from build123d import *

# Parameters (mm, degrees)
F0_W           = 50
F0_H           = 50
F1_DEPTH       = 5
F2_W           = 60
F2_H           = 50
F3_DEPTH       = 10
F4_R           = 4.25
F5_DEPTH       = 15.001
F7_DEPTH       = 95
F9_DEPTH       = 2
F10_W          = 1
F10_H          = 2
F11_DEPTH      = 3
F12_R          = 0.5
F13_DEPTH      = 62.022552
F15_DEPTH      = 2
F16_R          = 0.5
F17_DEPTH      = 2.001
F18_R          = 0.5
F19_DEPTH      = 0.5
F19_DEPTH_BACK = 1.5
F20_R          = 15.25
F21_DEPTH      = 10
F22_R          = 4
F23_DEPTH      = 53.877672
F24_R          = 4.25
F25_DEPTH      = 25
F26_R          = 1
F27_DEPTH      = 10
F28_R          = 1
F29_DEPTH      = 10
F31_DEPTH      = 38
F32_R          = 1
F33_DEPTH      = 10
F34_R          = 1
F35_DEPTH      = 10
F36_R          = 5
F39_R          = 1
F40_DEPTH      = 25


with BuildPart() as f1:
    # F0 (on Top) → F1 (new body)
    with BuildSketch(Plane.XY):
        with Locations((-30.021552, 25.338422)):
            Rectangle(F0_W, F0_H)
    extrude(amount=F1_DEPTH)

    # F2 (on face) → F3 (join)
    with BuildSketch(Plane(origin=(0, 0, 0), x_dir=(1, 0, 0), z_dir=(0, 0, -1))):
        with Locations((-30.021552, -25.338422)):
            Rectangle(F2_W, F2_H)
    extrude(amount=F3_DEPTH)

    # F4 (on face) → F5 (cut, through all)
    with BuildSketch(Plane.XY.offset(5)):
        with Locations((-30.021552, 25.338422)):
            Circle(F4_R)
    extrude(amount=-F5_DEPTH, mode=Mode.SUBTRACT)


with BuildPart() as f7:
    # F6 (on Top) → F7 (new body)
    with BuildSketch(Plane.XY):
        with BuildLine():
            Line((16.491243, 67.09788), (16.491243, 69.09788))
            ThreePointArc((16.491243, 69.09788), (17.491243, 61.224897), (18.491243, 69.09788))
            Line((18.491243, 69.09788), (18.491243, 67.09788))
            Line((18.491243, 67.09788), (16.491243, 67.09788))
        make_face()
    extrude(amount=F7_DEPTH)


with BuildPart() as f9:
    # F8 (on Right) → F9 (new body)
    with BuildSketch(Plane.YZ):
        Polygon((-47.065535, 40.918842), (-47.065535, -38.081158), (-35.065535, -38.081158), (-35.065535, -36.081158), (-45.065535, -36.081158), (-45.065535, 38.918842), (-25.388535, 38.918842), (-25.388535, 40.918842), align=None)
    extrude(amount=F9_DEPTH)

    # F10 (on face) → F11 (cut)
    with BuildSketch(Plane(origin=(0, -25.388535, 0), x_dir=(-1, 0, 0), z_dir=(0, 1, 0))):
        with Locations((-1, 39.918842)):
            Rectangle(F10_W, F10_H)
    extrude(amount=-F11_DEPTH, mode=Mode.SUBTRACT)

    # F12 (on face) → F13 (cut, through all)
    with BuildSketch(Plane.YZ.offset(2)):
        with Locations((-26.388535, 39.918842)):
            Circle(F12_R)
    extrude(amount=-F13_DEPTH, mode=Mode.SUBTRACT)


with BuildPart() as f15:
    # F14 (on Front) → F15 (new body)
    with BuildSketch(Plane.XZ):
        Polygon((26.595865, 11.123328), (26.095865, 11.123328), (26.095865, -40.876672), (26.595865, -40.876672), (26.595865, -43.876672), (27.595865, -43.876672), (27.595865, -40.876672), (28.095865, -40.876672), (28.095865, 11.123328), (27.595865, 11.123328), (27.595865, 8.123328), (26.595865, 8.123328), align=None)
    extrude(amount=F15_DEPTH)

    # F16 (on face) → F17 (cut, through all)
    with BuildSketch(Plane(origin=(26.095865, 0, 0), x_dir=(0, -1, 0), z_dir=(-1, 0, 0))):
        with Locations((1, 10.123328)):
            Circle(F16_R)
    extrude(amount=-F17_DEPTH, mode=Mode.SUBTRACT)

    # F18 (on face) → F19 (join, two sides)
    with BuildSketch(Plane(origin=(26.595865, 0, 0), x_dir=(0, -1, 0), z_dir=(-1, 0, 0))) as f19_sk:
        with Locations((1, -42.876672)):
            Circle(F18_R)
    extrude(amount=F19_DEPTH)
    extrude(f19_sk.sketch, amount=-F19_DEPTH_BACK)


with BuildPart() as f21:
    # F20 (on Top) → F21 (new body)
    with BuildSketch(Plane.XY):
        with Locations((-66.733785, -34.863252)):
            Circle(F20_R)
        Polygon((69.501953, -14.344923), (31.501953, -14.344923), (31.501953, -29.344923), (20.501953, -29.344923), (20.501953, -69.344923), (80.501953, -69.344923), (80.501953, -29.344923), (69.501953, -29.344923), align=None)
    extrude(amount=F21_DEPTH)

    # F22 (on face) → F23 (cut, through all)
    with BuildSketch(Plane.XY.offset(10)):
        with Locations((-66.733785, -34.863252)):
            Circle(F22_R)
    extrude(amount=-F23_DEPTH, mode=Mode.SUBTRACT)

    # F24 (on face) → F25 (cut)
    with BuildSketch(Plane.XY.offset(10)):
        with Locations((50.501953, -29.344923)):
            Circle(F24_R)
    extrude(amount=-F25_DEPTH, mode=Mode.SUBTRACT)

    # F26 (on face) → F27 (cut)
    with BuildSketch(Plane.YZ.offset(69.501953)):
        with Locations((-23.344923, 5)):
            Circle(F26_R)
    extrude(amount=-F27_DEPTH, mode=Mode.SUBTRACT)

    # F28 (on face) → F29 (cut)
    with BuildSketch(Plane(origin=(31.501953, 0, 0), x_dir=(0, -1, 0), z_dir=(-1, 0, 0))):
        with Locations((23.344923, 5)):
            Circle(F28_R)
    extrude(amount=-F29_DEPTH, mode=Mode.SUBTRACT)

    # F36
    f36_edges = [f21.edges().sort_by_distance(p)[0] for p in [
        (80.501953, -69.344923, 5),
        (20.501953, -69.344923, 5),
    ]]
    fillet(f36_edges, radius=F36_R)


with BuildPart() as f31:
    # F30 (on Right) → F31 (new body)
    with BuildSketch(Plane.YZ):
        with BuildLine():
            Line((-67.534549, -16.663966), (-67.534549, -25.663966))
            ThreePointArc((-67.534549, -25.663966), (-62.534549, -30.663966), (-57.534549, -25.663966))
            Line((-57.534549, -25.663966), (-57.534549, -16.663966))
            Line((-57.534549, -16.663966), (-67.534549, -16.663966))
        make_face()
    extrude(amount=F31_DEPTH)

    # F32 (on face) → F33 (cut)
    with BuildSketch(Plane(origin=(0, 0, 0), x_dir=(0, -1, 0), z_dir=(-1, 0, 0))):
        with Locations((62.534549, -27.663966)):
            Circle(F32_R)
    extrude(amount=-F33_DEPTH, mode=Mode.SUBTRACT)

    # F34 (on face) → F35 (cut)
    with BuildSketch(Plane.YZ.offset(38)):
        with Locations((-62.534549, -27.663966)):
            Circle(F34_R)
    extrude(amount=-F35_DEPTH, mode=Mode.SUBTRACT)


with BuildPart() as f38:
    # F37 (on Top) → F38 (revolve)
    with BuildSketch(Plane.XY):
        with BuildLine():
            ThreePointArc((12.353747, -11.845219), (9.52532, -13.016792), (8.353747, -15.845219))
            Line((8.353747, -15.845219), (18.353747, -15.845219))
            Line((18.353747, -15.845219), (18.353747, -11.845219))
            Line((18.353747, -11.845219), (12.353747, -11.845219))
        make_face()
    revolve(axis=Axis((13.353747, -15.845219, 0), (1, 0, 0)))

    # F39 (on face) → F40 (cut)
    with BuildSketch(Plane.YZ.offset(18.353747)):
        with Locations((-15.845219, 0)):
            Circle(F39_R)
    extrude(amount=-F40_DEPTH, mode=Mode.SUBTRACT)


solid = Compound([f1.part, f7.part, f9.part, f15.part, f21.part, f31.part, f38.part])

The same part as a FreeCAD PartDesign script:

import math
import FreeCAD as App
import Part
import Sketcher

V = App.Vector
Q = App.Units.Quantity


def edges_at(feature, points):
    """Names of the edges that pass closest to the given points."""
    edges = feature.Shape.Edges
    near = lambda p: min(range(len(edges)), key=lambda i: edges[i].distToShape(Part.Vertex(*p))[0])
    return sorted({f"Edge{near(p) + 1}" for p in points})


def add_polygon(sketch, points):
    """Adds a closed chain of lines whose ends are joined by coincident constraints."""
    first, n = sketch.GeometryCount, len(points)
    for a, b in zip(points, points[1:] + points[:1]):
        sketch.addGeometry(Part.LineSegment(App.Vector(*a, 0), App.Vector(*b, 0)), False)
    for i in range(n):
        sketch.addConstraint(Sketcher.Constraint("Coincident", first + i, 2, first + (i + 1) % n, 1))

doc = App.newDocument("Part")
body = doc.addObject("PartDesign::Body", "Body")

# Sketch on XY plane
sketch1 = body.newObject("Sketcher::SketchObject", "Sketch")
sketch1.AttachmentSupport = (doc.getObject("XY_Plane"), [""])
sketch1.MapMode = "FlatFace"
add_polygon(sketch1, [(-55.021552, 50.338422), (-55.021552, 0.338422), (-5.021552, 0.338422), (-5.021552, 50.338422)])  # lines 0-3
sketch1.addConstraint([
    Sketcher.Constraint("Vertical", 0),
    Sketcher.Constraint("Horizontal", 1),
    Sketcher.Constraint("Vertical", 2),
    Sketcher.Constraint("Horizontal", 3),
    Sketcher.Constraint("Equal", 3, 0),
    Sketcher.Constraint("DistanceX", 1, 1, 1, 2, Q("50 mm")),
    Sketcher.Constraint("DistanceX", 1, 2, -1, 1, Q("5.021552 mm")),
    Sketcher.Constraint("DistanceY", -1, 1, 0, 2, Q("0.338422 mm")),
])
pad1 = body.newObject("PartDesign::Pad", "Pad")
pad1.Profile = sketch1
pad1.Length = 5

# Sketch on XY plane
sketch2 = body.newObject("Sketcher::SketchObject", "Sketch001")
sketch2.AttachmentSupport = (doc.getObject("XY_Plane"), [""])
sketch2.MapMode = "FlatFace"
add_polygon(sketch2, [(-60.021552, 0.338422), (-60.021552, 50.338422), (-0.021552, 50.338422), (-0.021552, 0.338422)])  # lines 0-3
sketch2.addConstraint([
    Sketcher.Constraint("Vertical", 0),
    Sketcher.Constraint("Horizontal", 1),
    Sketcher.Constraint("Vertical", 2),
    Sketcher.Constraint("Horizontal", 3),
    Sketcher.Constraint("DistanceX", 1, 1, 1, 2, Q("60 mm")),
    Sketcher.Constraint("DistanceY", 0, 1, 0, 2, Q("50 mm")),
    Sketcher.Constraint("DistanceX", 0, 2, -1, 1, Q("60.021552 mm")),
    Sketcher.Constraint("DistanceY", -1, 1, 0, 2, Q("50.338422 mm")),
])
pad2 = body.newObject("PartDesign::Pad", "Pad001")
pad2.Profile = sketch2
pad2.Length = 10
pad2.Reversed = True

# Sketch on XY plane
sketch3 = body.newObject("Sketcher::SketchObject", "Sketch002")
sketch3.AttachmentSupport = (doc.getObject("XY_Plane"), [""])
sketch3.MapMode = "FlatFace"
sketch3.AttachmentOffset = App.Placement(V(0, 0, 5), App.Rotation())
sketch3.addGeometry(Part.Circle(V(-30.021552, 25.338422, 0), V(0, 0, 1), 4.25), False)
sketch3.addConstraint([
    Sketcher.Constraint("Diameter", 0, Q("8.5 mm")),
    Sketcher.Constraint("DistanceX", 0, 3, -1, 1, Q("30.021552 mm")),
    Sketcher.Constraint("DistanceY", -1, 1, 0, 3, Q("25.338422 mm")),
])
pocket1 = body.newObject("PartDesign::Pocket", "Pocket")
pocket1.Profile = sketch3
pocket1.Type = "ThroughAll"
body2 = doc.addObject("PartDesign::Body", "Body001")

# Sketch on XY plane
sketch4 = body2.newObject("Sketcher::SketchObject", "Sketch003")
sketch4.AttachmentSupport = (doc.getObject("XY_Plane001"), [""])
sketch4.MapMode = "FlatFace"
sketch4.addGeometry([
    Part.LineSegment(V(16.491243, 67.09788, 0), V(16.491243, 69.09788, 0)),
    Part.ArcOfCircle(Part.Circle(V(17.491243, 65.224897, 0), V(0, 0, 1), 4), math.radians(104.477513), math.radians(435.522487)),
    Part.LineSegment(V(18.491243, 69.09788, 0), V(18.491243, 67.09788, 0)),
    Part.LineSegment(V(18.491243, 67.09788, 0), V(16.491243, 67.09788, 0)),
], False)
sketch4.addConstraint([
    Sketcher.Constraint("Coincident", 0, 2, 1, 1),
    Sketcher.Constraint("Coincident", 1, 2, 2, 1),
    Sketcher.Constraint("Coincident", 2, 2, 3, 1),
    Sketcher.Constraint("Coincident", 3, 2, 0, 1),
    Sketcher.Constraint("Vertical", 0),
    Sketcher.Constraint("Vertical", 2),
    Sketcher.Constraint("Horizontal", 3),
    Sketcher.Constraint("Horizontal", 0, 2, 1, 2),
    Sketcher.Constraint("Equal", 3, 0),
    Sketcher.Constraint("Radius", 1, Q("4 mm")),
    Sketcher.Constraint("DistanceX", 3, 2, 3, 1, Q("2 mm")),
    Sketcher.Constraint("DistanceY", -1, 1, 0, 2, Q("69.09788 mm")),
    Sketcher.Constraint("DistanceX", -1, 1, 1, 3, Q("17.491243 mm")),
])
pad3 = body2.newObject("PartDesign::Pad", "Pad002")
pad3.Profile = sketch4
pad3.Length = 95
body3 = doc.addObject("PartDesign::Body", "Body002")

# Sketch on YZ plane
sketch5 = body3.newObject("Sketcher::SketchObject", "Sketch004")
sketch5.AttachmentSupport = (doc.getObject("YZ_Plane002"), [""])
sketch5.MapMode = "FlatFace"
add_polygon(sketch5, [(-47.065535, 40.918842), (-47.065535, -38.081158), (-35.065535, -38.081158), (-35.065535, -36.081158), (-45.065535, -36.081158), (-45.065535, 38.918842), (-25.388535, 38.918842), (-25.388535, 40.918842)])  # lines 0-7
sketch5.addConstraint([
    Sketcher.Constraint("Vertical", 0),
    Sketcher.Constraint("Horizontal", 1),
    Sketcher.Constraint("Vertical", 2),
    Sketcher.Constraint("Horizontal", 3),
    Sketcher.Constraint("Vertical", 4),
    Sketcher.Constraint("Horizontal", 5),
    Sketcher.Constraint("Vertical", 6),
    Sketcher.Constraint("Horizontal", 7),
    Sketcher.Constraint("Equal", 2, 6),
    Sketcher.Constraint("DistanceX", 1, 1, 1, 2, Q("12 mm")),
    Sketcher.Constraint("DistanceX", 3, 2, 3, 1, Q("10 mm")),
    Sketcher.Constraint("DistanceY", 0, 2, 0, 1, Q("79 mm")),
    Sketcher.Constraint("DistanceY", 2, 1, 2, 2, Q("2 mm")),
    Sketcher.Constraint("DistanceX", 5, 1, 5, 2, Q("19.677 mm")),
    Sketcher.Constraint("DistanceY", 0, 2, -1, 1, Q("38.081158 mm")),
    Sketcher.Constraint("DistanceX", 0, 2, -1, 1, Q("47.065535 mm")),
])
pad4 = body3.newObject("PartDesign::Pad", "Pad003")
pad4.Profile = sketch5
pad4.Length = 2

# Sketch on XZ plane
sketch6 = body3.newObject("Sketcher::SketchObject", "Sketch005")
sketch6.AttachmentSupport = (doc.getObject("XZ_Plane002"), [""])
sketch6.MapMode = "FlatFace"
sketch6.AttachmentOffset = App.Placement(V(0, 0, 25.388535), App.Rotation())
add_polygon(sketch6, [(1.5, 40.918842), (1.5, 38.918842), (0.5, 38.918842), (0.5, 40.918842)])  # lines 0-3
sketch6.addConstraint([
    Sketcher.Constraint("Vertical", 0),
    Sketcher.Constraint("Horizontal", 1),
    Sketcher.Constraint("Vertical", 2),
    Sketcher.Constraint("Horizontal", 3),
    Sketcher.Constraint("DistanceX", 1, 2, 1, 1, Q("1 mm")),
    Sketcher.Constraint("DistanceY", 0, 2, 0, 1, Q("2 mm")),
    Sketcher.Constraint("DistanceX", -1, 1, 0, 2, Q("1.5 mm")),
    Sketcher.Constraint("DistanceY", -1, 1, 0, 2, Q("38.918842 mm")),
])
pocket2 = body3.newObject("PartDesign::Pocket", "Pocket001")
pocket2.Profile = sketch6
pocket2.Length = 3
pocket2.Reversed = True

# Sketch on YZ plane
sketch7 = body3.newObject("Sketcher::SketchObject", "Sketch006")
sketch7.AttachmentSupport = (doc.getObject("YZ_Plane002"), [""])
sketch7.MapMode = "FlatFace"
sketch7.AttachmentOffset = App.Placement(V(0, 0, 2), App.Rotation())
sketch7.addGeometry(Part.Circle(V(-26.388535, 39.918842, 0), V(0, 0, 1), 0.5), False)
sketch7.addConstraint([
    Sketcher.Constraint("Diameter", 0, Q("1 mm")),
    Sketcher.Constraint("DistanceY", -1, 1, 0, 3, Q("39.918842 mm")),
    Sketcher.Constraint("DistanceX", 0, 3, -1, 1, Q("26.388535 mm")),
])
pocket3 = body3.newObject("PartDesign::Pocket", "Pocket002")
pocket3.Profile = sketch7
pocket3.Type = "ThroughAll"
body4 = doc.addObject("PartDesign::Body", "Body003")

# Sketch on XZ plane
sketch8 = body4.newObject("Sketcher::SketchObject", "Sketch007")
sketch8.AttachmentSupport = (doc.getObject("XZ_Plane003"), [""])
sketch8.MapMode = "FlatFace"
add_polygon(sketch8, [(26.595865, 11.123328), (26.095865, 11.123328), (26.095865, -40.876672), (26.595865, -40.876672), (26.595865, -43.876672), (27.595865, -43.876672), (27.595865, -40.876672), (28.095865, -40.876672), (28.095865, 11.123328), (27.595865, 11.123328), (27.595865, 8.123328), (26.595865, 8.123328)])  # lines 0-11
sketch8.addConstraint([
    Sketcher.Constraint("Horizontal", 0),
    Sketcher.Constraint("Vertical", 1),
    Sketcher.Constraint("Horizontal", 2),
    Sketcher.Constraint("Vertical", 3),
    Sketcher.Constraint("Horizontal", 4),
    Sketcher.Constraint("Vertical", 5),
    Sketcher.Constraint("Horizontal", 6),
    Sketcher.Constraint("Vertical", 7),
    Sketcher.Constraint("Horizontal", 8),
    Sketcher.Constraint("Vertical", 9),
    Sketcher.Constraint("Horizontal", 10),
    Sketcher.Constraint("Vertical", 11),
    Sketcher.Constraint("Horizontal", 2, 2, 5, 2),
    Sketcher.Constraint("Horizontal", 0, 2, 7, 2),
    Sketcher.Constraint("Vertical", 5, 2, 8, 2),
    Sketcher.Constraint("Vertical", 3, 2, 10, 2),
    Sketcher.Constraint("Equal", 2, 6),
    Sketcher.Constraint("Equal", 5, 9),
    Sketcher.Constraint("DistanceX", 4, 1, 4, 2, Q("1 mm")),
    Sketcher.Constraint("DistanceY", 1, 2, 1, 1, Q("52 mm")),
    Sketcher.Constraint("DistanceY", 3, 2, 3, 1, Q("3 mm")),
    Sketcher.Constraint("DistanceX", 0, 2, 0, 1, Q("0.5 mm")),
    Sketcher.Constraint("DistanceY", -1, 1, 0, 2, Q("11.123328 mm")),
    Sketcher.Constraint("DistanceX", -1, 1, 0, 2, Q("26.095865 mm")),
])
pad5 = body4.newObject("PartDesign::Pad", "Pad004")
pad5.Profile = sketch8
pad5.Length = 2

# Sketch on YZ plane
sketch9 = body4.newObject("Sketcher::SketchObject", "Sketch008")
sketch9.AttachmentSupport = (doc.getObject("YZ_Plane003"), [""])
sketch9.MapMode = "FlatFace"
sketch9.AttachmentOffset = App.Placement(V(0, 0, 26.095865), App.Rotation())
sketch9.addGeometry(Part.Circle(V(-1, 10.123328, 0), V(0, 0, 1), 0.5), False)
sketch9.addConstraint([
    Sketcher.Constraint("Diameter", 0, Q("1 mm")),
    Sketcher.Constraint("DistanceX", 0, 3, -1, 1, Q("1 mm")),
    Sketcher.Constraint("DistanceY", -1, 1, 0, 3, Q("10.123328 mm")),
])
pocket4 = body4.newObject("PartDesign::Pocket", "Pocket003")
pocket4.Profile = sketch9
pocket4.Type = "ThroughAll"
pocket4.Reversed = True

# Sketch on YZ plane
sketch10 = body4.newObject("Sketcher::SketchObject", "Sketch009")
sketch10.AttachmentSupport = (doc.getObject("YZ_Plane003"), [""])
sketch10.MapMode = "FlatFace"
sketch10.AttachmentOffset = App.Placement(V(0, 0, 26.595865), App.Rotation())
sketch10.addGeometry(Part.Circle(V(-1, -42.876672, 0), V(0, 0, 1), 0.5), False)
sketch10.addConstraint([
    Sketcher.Constraint("Diameter", 0, Q("1 mm")),
    Sketcher.Constraint("DistanceX", 0, 3, -1, 1, Q("1 mm")),
    Sketcher.Constraint("DistanceY", 0, 3, -1, 1, Q("42.876672 mm")),
])
pad6 = body4.newObject("PartDesign::Pad", "Pad005")
pad6.Profile = sketch10
pad6.Type = "TwoLengths"
pad6.Length = 0.5
pad6.Length2 = 1.5
pad6.Reversed = True
body5 = doc.addObject("PartDesign::Body", "Body004")
body5.AllowCompound = True

# Sketch on XY plane
sketch11 = body5.newObject("Sketcher::SketchObject", "Sketch010")
sketch11.AttachmentSupport = (doc.getObject("XY_Plane004"), [""])
sketch11.MapMode = "FlatFace"
sketch11.addGeometry(Part.Circle(V(-66.733785, -34.863252, 0), V(0, 0, 1), 15.25), False)  # 0
add_polygon(sketch11, [(69.501953, -14.344923), (31.501953, -14.344923), (31.501953, -29.344923), (20.501953, -29.344923), (20.501953, -69.344923), (80.501953, -69.344923), (80.501953, -29.344923), (69.501953, -29.344923)])  # lines 1-8
sketch11.addConstraint([
    Sketcher.Constraint("Horizontal", 1),
    Sketcher.Constraint("Vertical", 2),
    Sketcher.Constraint("Horizontal", 3),
    Sketcher.Constraint("Vertical", 4),
    Sketcher.Constraint("Horizontal", 5),
    Sketcher.Constraint("Vertical", 6),
    Sketcher.Constraint("Horizontal", 7),
    Sketcher.Constraint("Vertical", 8),
    Sketcher.Constraint("Horizontal", 3, 2, 6, 2),
    Sketcher.Constraint("Equal", 3, 7),
    Sketcher.Constraint("Diameter", 0, Q("30.5 mm")),
    Sketcher.Constraint("DistanceX", 1, 2, 1, 1, Q("38 mm")),
    Sketcher.Constraint("DistanceX", 3, 2, 3, 1, Q("11 mm")),
    Sketcher.Constraint("DistanceY", 2, 2, 2, 1, Q("15 mm")),
    Sketcher.Constraint("DistanceY", 4, 2, 4, 1, Q("40 mm")),
    Sketcher.Constraint("DistanceY", 0, 3, 1, 2, Q("20.518329 mm")),
    Sketcher.Constraint("DistanceX", 0, 3, 5, 2, Q("147.235738 mm")),
    Sketcher.Constraint("DistanceX", 0, 3, -1, 1, Q("66.733785 mm")),
    Sketcher.Constraint("DistanceY", 0, 3, -1, 1, Q("34.863252 mm")),
])
pad7 = body5.newObject("PartDesign::Pad", "Pad006")
pad7.Profile = sketch11
pad7.Length = 10

# Sketch on XY plane
sketch12 = body5.newObject("Sketcher::SketchObject", "Sketch011")
sketch12.AttachmentSupport = (doc.getObject("XY_Plane004"), [""])
sketch12.MapMode = "FlatFace"
sketch12.AttachmentOffset = App.Placement(V(0, 0, 10), App.Rotation())
sketch12.addGeometry(Part.Circle(V(-66.733785, -34.863252, 0), V(0, 0, 1), 4), False)
sketch12.addConstraint([
    Sketcher.Constraint("Diameter", 0, Q("8 mm")),
    Sketcher.Constraint("DistanceX", 0, 3, -1, 1, Q("66.733785 mm")),
    Sketcher.Constraint("DistanceY", 0, 3, -1, 1, Q("34.863252 mm")),
])
pocket5 = body5.newObject("PartDesign::Pocket", "Pocket004")
pocket5.Profile = sketch12
pocket5.Type = "ThroughAll"

# Sketch on XY plane
sketch13 = body5.newObject("Sketcher::SketchObject", "Sketch012")
sketch13.AttachmentSupport = (doc.getObject("XY_Plane004"), [""])
sketch13.MapMode = "FlatFace"
sketch13.AttachmentOffset = App.Placement(V(0, 0, 10), App.Rotation())
sketch13.addGeometry(Part.Circle(V(50.501953, -29.344923, 0), V(0, 0, 1), 4.25), False)
sketch13.addConstraint([
    Sketcher.Constraint("Diameter", 0, Q("8.5 mm")),
    Sketcher.Constraint("DistanceX", -1, 1, 0, 3, Q("50.501953 mm")),
    Sketcher.Constraint("DistanceY", 0, 3, -1, 1, Q("29.344923 mm")),
])
pocket6 = body5.newObject("PartDesign::Pocket", "Pocket005")
pocket6.Profile = sketch13
pocket6.Length = 25

# Sketch on YZ plane
sketch14 = body5.newObject("Sketcher::SketchObject", "Sketch013")
sketch14.AttachmentSupport = (doc.getObject("YZ_Plane004"), [""])
sketch14.MapMode = "FlatFace"
sketch14.AttachmentOffset = App.Placement(V(0, 0, 69.501953), App.Rotation())
sketch14.addGeometry(Part.Circle(V(-23.344923, 5, 0), V(0, 0, 1), 1), False)
sketch14.addConstraint([
    Sketcher.Constraint("Diameter", 0, Q("2 mm")),
    Sketcher.Constraint("DistanceY", -1, 1, 0, 3, Q("5 mm")),
    Sketcher.Constraint("DistanceX", 0, 3, -1, 1, Q("23.344923 mm")),
])
pocket7 = body5.newObject("PartDesign::Pocket", "Pocket006")
pocket7.Profile = sketch14
pocket7.Length = 10

# Sketch on YZ plane
sketch15 = body5.newObject("Sketcher::SketchObject", "Sketch014")
sketch15.AttachmentSupport = (doc.getObject("YZ_Plane004"), [""])
sketch15.MapMode = "FlatFace"
sketch15.AttachmentOffset = App.Placement(V(0, 0, 31.501953), App.Rotation())
sketch15.addGeometry(Part.Circle(V(-23.344923, 5, 0), V(0, 0, 1), 1), False)
sketch15.addConstraint([
    Sketcher.Constraint("Diameter", 0, Q("2 mm")),
    Sketcher.Constraint("DistanceY", -1, 1, 0, 3, Q("5 mm")),
    Sketcher.Constraint("DistanceX", 0, 3, -1, 1, Q("23.344923 mm")),
])
pocket8 = body5.newObject("PartDesign::Pocket", "Pocket007")
pocket8.Profile = sketch15
pocket8.Length = 10
pocket8.Reversed = True
doc.recompute()

fillet = body5.newObject("PartDesign::Fillet", "Fillet")
fillet.Base = (pocket8, edges_at(pocket8, [(80.502, -69.345, 5), (20.502, -69.345, 5)]))
fillet.Radius = 5
body6 = doc.addObject("PartDesign::Body", "Body005")

# Sketch on YZ plane
sketch16 = body6.newObject("Sketcher::SketchObject", "Sketch015")
sketch16.AttachmentSupport = (doc.getObject("YZ_Plane005"), [""])
sketch16.MapMode = "FlatFace"
sketch16.addGeometry([
    Part.LineSegment(V(-67.534549, -16.663966, 0), V(-67.534549, -25.663966, 0)),
    Part.ArcOfCircle(Part.Circle(V(-62.534549, -25.663966, 0), V(0, 0, 1), 5), math.radians(180), math.radians(360)),
    Part.LineSegment(V(-57.534549, -25.663966, 0), V(-57.534549, -16.663966, 0)),
    Part.LineSegment(V(-57.534549, -16.663966, 0), V(-67.534549, -16.663966, 0)),
], False)
sketch16.addConstraint([
    Sketcher.Constraint("Tangent", 0, 2, 1, 1),
    Sketcher.Constraint("Tangent", 1, 2, 2, 1),
    Sketcher.Constraint("Coincident", 2, 2, 3, 1),
    Sketcher.Constraint("Coincident", 3, 2, 0, 1),
    Sketcher.Constraint("Vertical", 0),
    Sketcher.Constraint("Vertical", 2),
    Sketcher.Constraint("Horizontal", 3),
    Sketcher.Constraint("Radius", 1, Q("5 mm")),
    Sketcher.Constraint("DistanceY", 0, 2, 0, 1, Q("9 mm")),
    Sketcher.Constraint("DistanceX", 1, 3, -1, 1, Q("62.534549 mm")),
    Sketcher.Constraint("DistanceY", 1, 3, -1, 1, Q("25.663966 mm")),
])
pad8 = body6.newObject("PartDesign::Pad", "Pad007")
pad8.Profile = sketch16
pad8.Length = 38

# Sketch on YZ plane
sketch17 = body6.newObject("Sketcher::SketchObject", "Sketch016")
sketch17.AttachmentSupport = (doc.getObject("YZ_Plane005"), [""])
sketch17.MapMode = "FlatFace"
sketch17.addGeometry(Part.Circle(V(-62.534549, -27.663966, 0), V(0, 0, 1), 1), False)
sketch17.addConstraint([
    Sketcher.Constraint("Diameter", 0, Q("2 mm")),
    Sketcher.Constraint("DistanceX", 0, 3, -1, 1, Q("62.534549 mm")),
    Sketcher.Constraint("DistanceY", 0, 3, -1, 1, Q("27.663966 mm")),
])
pocket9 = body6.newObject("PartDesign::Pocket", "Pocket008")
pocket9.Profile = sketch17
pocket9.Length = 10
pocket9.Reversed = True

# Sketch on YZ plane
sketch18 = body6.newObject("Sketcher::SketchObject", "Sketch017")
sketch18.AttachmentSupport = (doc.getObject("YZ_Plane005"), [""])
sketch18.MapMode = "FlatFace"
sketch18.AttachmentOffset = App.Placement(V(0, 0, 38), App.Rotation())
sketch18.addGeometry(Part.Circle(V(-62.534549, -27.663966, 0), V(0, 0, 1), 1), False)
sketch18.addConstraint([
    Sketcher.Constraint("Diameter", 0, Q("2 mm")),
    Sketcher.Constraint("DistanceX", 0, 3, -1, 1, Q("62.534549 mm")),
    Sketcher.Constraint("DistanceY", 0, 3, -1, 1, Q("27.663966 mm")),
])
pocket10 = body6.newObject("PartDesign::Pocket", "Pocket009")
pocket10.Profile = sketch18
pocket10.Length = 10
body7 = doc.addObject("PartDesign::Body", "Body006")

# Sketch on XY plane
sketch19 = body7.newObject("Sketcher::SketchObject", "Sketch018")
sketch19.AttachmentSupport = (doc.getObject("XY_Plane006"), [""])
sketch19.MapMode = "FlatFace"
sketch19.addGeometry([
    Part.ArcOfCircle(Part.Circle(V(12.353747, -15.845219, 0), V(0, 0, 1), 4), math.radians(90.000006), math.radians(179.999994)),
    Part.LineSegment(V(8.353747, -15.845219, 0), V(18.353747, -15.845219, 0)),
    Part.LineSegment(V(18.353747, -15.845219, 0), V(18.353747, -11.845219, 0)),
    Part.LineSegment(V(18.353747, -11.845219, 0), V(12.353747, -11.845219, 0)),
], False)
sketch19.addGeometry(Part.LineSegment(V(8.353747, -15.845219, 0), V(18.353747, -15.845219, 0)), True)  # axis
sketch19.addConstraint([
    Sketcher.Constraint("Coincident", 0, 2, 1, 1),
    Sketcher.Constraint("Coincident", 1, 2, 2, 1),
    Sketcher.Constraint("Coincident", 2, 2, 3, 1),
    Sketcher.Constraint("Tangent", 3, 2, 0, 1),
    Sketcher.Constraint("Horizontal", 1),
    Sketcher.Constraint("Vertical", 2),
    Sketcher.Constraint("Horizontal", 3),
    Sketcher.Constraint("Horizontal", 4),
    Sketcher.Constraint("Coincident", 4, 1, 0, 2),
    Sketcher.Constraint("Vertical", 2, 2, 4, 2),
    Sketcher.Constraint("Radius", 0, Q("4 mm")),
    Sketcher.Constraint("DistanceX", 1, 1, 1, 2, Q("10 mm")),
    Sketcher.Constraint("DistanceY", 2, 1, 2, 2, Q("4 mm")),
    Sketcher.Constraint("DistanceY", 0, 3, -1, 1, Q("15.845219 mm")),
    Sketcher.Constraint("DistanceX", -1, 1, 0, 3, Q("12.353747 mm")),
])
revolution = body7.newObject("PartDesign::Revolution", "Revolution")
revolution.Profile = sketch19
revolution.ReferenceAxis = (sketch19, ["Axis0"])
revolution.Angle = 360

# Sketch on YZ plane
sketch20 = body7.newObject("Sketcher::SketchObject", "Sketch019")
sketch20.AttachmentSupport = (doc.getObject("YZ_Plane006"), [""])
sketch20.MapMode = "FlatFace"
sketch20.AttachmentOffset = App.Placement(V(0, 0, 18.353747), App.Rotation())
sketch20.addGeometry(Part.Circle(V(-15.845219, 0, 0), V(0, 0, 1), 1), False)
sketch20.addConstraint([
    Sketcher.Constraint("PointOnObject", 0, 3, -1),
    Sketcher.Constraint("Diameter", 0, Q("2 mm")),
    Sketcher.Constraint("DistanceX", 0, 3, -1, 1, Q("15.845219 mm")),
])
pocket11 = body7.newObject("PartDesign::Pocket", "Pocket010")
pocket11.Profile = sketch20
pocket11.Length = 25

doc.recompute()
